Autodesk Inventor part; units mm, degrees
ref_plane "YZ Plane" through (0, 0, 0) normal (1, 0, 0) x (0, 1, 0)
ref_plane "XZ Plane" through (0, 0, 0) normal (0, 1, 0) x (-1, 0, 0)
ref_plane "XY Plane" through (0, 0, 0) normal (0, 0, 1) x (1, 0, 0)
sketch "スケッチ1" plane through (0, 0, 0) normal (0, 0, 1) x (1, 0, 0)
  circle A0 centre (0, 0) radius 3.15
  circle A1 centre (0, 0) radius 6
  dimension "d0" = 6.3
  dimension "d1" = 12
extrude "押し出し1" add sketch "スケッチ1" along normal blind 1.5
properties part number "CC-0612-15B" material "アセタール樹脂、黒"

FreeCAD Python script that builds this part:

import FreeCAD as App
import Part
import Sketcher

V = App.Vector

doc = App.newDocument("Part")
params = doc.addObject("Spreadsheet::Sheet", "Params")
for row, (alias, value) in enumerate([
    ("sketch1_diameter", "12 mm"),
    ("sketch1_diameter2", "6.3 mm"),
    ("pad1_length", "1.5 mm"),
], start=1):
    params.set(f"A{row}", alias)
    params.set(f"B{row}", "=" + value)
    params.setAlias(f"B{row}", alias)

body = doc.addObject("PartDesign::Body", "Body")

# Sketch on XY plane
sketch1 = body.newObject("Sketcher::SketchObject", "Sketch")
sketch1.AttachmentSupport = (doc.getObject("XY_Plane"), [""])
sketch1.MapMode = "FlatFace"
sketch1.addGeometry([
    Part.Circle(V(0, 0, 0), V(0, 0, 1), 6),
    Part.Circle(V(0, 0, 0), V(0, 0, 1), 3.1),
], False)
sketch1.addConstraint([
    Sketcher.Constraint("Coincident", 0, 3, -1, 1),
    Sketcher.Constraint("Coincident", 1, 3, -1, 1),
    Sketcher.Constraint("Diameter", 0, 12.0),
    Sketcher.Constraint("Diameter", 1, 6.3),
])
sketch1.setExpression("Constraints[2]", "Params.sketch1_diameter")
sketch1.setExpression("Constraints[3]", "Params.sketch1_diameter2")
pad1 = body.newObject("PartDesign::Pad", "Pad")
pad1.Profile = sketch1
pad1.setExpression("Length", "Params.pad1_length")

doc.recompute()
